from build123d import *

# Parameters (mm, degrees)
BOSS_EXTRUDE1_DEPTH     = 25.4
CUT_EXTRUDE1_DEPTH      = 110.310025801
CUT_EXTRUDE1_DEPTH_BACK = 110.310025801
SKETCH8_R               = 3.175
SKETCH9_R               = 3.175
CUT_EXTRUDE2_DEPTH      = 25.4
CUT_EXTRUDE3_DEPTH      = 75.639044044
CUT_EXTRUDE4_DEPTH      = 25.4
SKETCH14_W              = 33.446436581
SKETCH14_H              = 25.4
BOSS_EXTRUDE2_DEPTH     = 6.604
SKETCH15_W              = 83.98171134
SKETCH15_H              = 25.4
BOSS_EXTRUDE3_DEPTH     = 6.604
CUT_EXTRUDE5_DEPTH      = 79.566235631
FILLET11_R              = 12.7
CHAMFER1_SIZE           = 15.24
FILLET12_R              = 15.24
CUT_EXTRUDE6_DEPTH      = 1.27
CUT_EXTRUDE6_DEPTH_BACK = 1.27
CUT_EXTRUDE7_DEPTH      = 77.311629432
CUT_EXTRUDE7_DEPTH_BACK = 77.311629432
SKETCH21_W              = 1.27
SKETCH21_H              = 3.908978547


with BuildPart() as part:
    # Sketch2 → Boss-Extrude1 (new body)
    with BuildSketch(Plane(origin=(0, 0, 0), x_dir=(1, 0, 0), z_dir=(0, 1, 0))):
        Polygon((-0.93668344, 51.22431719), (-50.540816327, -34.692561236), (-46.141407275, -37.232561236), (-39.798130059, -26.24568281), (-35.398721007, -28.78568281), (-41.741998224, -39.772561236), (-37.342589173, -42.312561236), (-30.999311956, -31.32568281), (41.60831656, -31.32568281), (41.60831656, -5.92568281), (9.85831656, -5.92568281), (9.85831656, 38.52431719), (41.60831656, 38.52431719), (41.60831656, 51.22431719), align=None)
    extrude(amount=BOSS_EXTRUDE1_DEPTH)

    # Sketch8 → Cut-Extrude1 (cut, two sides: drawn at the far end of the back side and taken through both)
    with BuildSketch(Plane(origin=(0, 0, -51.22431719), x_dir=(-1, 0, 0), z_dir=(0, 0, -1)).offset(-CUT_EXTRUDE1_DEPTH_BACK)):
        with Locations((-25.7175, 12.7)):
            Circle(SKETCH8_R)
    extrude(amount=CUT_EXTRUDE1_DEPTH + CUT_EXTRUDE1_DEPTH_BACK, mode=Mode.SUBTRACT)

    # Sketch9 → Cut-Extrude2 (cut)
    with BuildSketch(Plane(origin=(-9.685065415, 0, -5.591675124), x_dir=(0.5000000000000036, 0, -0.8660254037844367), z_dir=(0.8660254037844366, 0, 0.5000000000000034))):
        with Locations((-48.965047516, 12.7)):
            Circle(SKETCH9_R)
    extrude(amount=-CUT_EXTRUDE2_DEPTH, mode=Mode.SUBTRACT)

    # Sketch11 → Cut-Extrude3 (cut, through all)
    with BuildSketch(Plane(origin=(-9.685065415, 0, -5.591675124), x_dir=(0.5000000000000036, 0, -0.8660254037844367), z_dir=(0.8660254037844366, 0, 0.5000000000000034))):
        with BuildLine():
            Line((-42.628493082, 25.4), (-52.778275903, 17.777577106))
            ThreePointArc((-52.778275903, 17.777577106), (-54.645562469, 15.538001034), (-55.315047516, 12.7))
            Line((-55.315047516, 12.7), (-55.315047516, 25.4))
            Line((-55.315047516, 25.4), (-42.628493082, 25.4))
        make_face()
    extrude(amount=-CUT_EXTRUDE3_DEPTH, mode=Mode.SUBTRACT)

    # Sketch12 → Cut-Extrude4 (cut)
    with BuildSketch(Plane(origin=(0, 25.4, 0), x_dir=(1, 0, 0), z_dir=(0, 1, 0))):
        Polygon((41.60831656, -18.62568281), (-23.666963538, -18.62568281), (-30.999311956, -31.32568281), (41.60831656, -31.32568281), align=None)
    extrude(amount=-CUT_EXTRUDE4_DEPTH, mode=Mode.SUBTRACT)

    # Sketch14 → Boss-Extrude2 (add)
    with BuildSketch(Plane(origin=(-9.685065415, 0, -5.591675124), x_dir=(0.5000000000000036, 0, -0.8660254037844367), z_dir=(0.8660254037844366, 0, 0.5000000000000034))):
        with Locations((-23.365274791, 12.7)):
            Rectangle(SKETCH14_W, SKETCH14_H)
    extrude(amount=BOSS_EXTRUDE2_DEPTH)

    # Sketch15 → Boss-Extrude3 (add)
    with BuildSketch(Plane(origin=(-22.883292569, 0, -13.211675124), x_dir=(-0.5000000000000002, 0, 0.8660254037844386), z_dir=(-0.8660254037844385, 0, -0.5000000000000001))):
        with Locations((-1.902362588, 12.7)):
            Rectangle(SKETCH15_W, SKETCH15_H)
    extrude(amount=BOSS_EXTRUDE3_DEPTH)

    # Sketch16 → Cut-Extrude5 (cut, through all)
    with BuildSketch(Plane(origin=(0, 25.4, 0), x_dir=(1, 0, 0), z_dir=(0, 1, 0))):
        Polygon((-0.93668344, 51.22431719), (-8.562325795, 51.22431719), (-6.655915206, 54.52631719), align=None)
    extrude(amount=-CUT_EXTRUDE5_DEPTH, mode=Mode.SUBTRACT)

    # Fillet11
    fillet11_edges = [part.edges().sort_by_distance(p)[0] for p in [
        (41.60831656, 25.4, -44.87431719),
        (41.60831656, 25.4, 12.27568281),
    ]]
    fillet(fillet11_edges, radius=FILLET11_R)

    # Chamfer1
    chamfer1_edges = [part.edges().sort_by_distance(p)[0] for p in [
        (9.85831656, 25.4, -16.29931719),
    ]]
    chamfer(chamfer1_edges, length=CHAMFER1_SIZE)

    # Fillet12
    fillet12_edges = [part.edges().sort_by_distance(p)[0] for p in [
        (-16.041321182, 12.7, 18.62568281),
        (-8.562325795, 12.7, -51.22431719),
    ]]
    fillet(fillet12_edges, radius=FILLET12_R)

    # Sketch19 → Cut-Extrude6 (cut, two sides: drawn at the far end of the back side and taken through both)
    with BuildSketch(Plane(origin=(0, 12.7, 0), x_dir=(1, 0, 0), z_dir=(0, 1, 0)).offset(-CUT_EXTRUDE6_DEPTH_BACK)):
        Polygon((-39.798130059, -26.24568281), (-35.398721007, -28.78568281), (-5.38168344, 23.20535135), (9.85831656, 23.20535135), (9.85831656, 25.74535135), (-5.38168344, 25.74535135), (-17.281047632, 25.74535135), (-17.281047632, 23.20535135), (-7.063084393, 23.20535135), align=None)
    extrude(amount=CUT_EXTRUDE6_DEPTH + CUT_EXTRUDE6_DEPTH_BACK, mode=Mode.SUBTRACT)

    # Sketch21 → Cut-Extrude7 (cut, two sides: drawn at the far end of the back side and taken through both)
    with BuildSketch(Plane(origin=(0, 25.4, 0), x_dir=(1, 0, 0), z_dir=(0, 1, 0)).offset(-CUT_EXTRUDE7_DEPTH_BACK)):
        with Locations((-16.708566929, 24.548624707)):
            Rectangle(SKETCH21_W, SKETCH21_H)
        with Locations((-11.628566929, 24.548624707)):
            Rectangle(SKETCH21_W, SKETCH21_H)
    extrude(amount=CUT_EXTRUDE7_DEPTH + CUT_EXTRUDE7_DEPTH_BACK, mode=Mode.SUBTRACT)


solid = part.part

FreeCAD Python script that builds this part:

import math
import FreeCAD as App
import Part
import Sketcher

V = App.Vector
Q = App.Units.Quantity


def edges_at(feature, points):
    """Names of the edges that pass closest to the given points."""
    edges = feature.Shape.Edges
    near = lambda p: min(range(len(edges)), key=lambda i: edges[i].distToShape(Part.Vertex(*p))[0])
    return sorted({f"Edge{near(p) + 1}" for p in points})


def add_polygon(sketch, points):
    """Adds a closed chain of lines whose ends are joined by coincident constraints."""
    first, n = sketch.GeometryCount, len(points)
    for a, b in zip(points, points[1:] + points[:1]):
        sketch.addGeometry(Part.LineSegment(App.Vector(*a, 0), App.Vector(*b, 0)), False)
    for i in range(n):
        sketch.addConstraint(Sketcher.Constraint("Coincident", first + i, 2, first + (i + 1) % n, 1))

doc = App.newDocument("Part")
body = doc.addObject("PartDesign::Body", "Body")

sketch1 = body.newObject("Sketcher::SketchObject", "Sketch")
sketch1.AttachmentSupport = (doc.getObject("XZ_Plane"), [""])
sketch1.MapMode = "FlatFace"
add_polygon(sketch1, [(-0.936683, -51.224317), (-50.540816, 34.692561), (-46.141407, 37.232561), (-39.79813, 26.245683), (-35.398721, 28.785683), (-41.741998, 39.772561), (-37.342589, 42.312561), (-30.999312, 31.325683), (41.608317, 31.325683), (41.608317, 5.925683), (9.858317, 5.925683), (9.858317, -38.524317), (41.608317, -38.524317), (41.608317, -51.224317)])
sketch1.addConstraint(Sketcher.Constraint("Horizontal", 7))
sketch1.addConstraint(Sketcher.Constraint("Vertical", 8))
sketch1.addConstraint(Sketcher.Constraint("Horizontal", 9))
sketch1.addConstraint(Sketcher.Constraint("Vertical", 10))
sketch1.addConstraint(Sketcher.Constraint("Horizontal", 11))
sketch1.addConstraint(Sketcher.Constraint("Vertical", 12))
sketch1.addConstraint(Sketcher.Constraint("Horizontal", 13))
sketch1.addConstraint(Sketcher.Constraint("Perpendicular", 0, 1))
sketch1.addConstraint(Sketcher.Constraint("Perpendicular", 1, 2))
sketch1.addConstraint(Sketcher.Constraint("Perpendicular", 2, 3))
sketch1.addConstraint(Sketcher.Constraint("Perpendicular", 3, 4))
sketch1.addConstraint(Sketcher.Constraint("Perpendicular", 4, 5))
sketch1.addConstraint(Sketcher.Constraint("Perpendicular", 5, 6))
sketch1.addConstraint(Sketcher.Constraint("Vertical", 8, 2, 11, 2))
sketch1.addConstraint(Sketcher.Constraint("Equal", 1, 3))
sketch1.addConstraint(Sketcher.Constraint("Equal", 2, 4))
sketch1.addConstraint(Sketcher.Constraint("Equal", 3, 5))
sketch1.addConstraint(Sketcher.Constraint("Equal", 4, 6))
sketch1.addConstraint(Sketcher.Constraint("DistanceY", 8, 2, 8, 1, Q("1 in")))
sketch1.addConstraint(Sketcher.Constraint("DistanceY", 12, 2, 12, 1, Q("0.5 in")))
sketch1.addConstraint(Sketcher.Constraint("Angle", 0, Q("120 deg")))
sketch1.addConstraint(Sketcher.Constraint("Distance", 1, Q("0.2 in")))
sketch1.addConstraint(Sketcher.Constraint("DistanceX", 9, 2, 9, 1, Q("1.25 in")))
sketch1.addConstraint(Sketcher.Constraint("DistanceY", 10, 2, 10, 1, Q("1.75 in")))
sketch1.addConstraint(Sketcher.Constraint("DistanceX", 13, 2, 13, 1, Q("1.675 in")))
sketch1.addConstraint(Sketcher.Constraint("DistanceX", 4, 2, -1, 1, 41.741998))
sketch1.addConstraint(Sketcher.Constraint("DistanceY", -1, 1, 0, 2, 34.692561))
sketch1.addConstraint(Sketcher.Constraint("DistanceX", 2, 2, -1, 1, 39.79813))
pad1 = body.newObject("PartDesign::Pad", "Pad")
pad1.Profile = sketch1
pad1.Length = Q("1 in")
pad1.Reversed = True

sketch2 = body.newObject("Sketcher::SketchObject", "Sketch001")
sketch2.AttachmentSupport = (doc.getObject("XY_Plane"), [""])
sketch2.MapMode = "FlatFace"
sketch2.AttachmentOffset = App.Placement(V(0, 0, -51.224317), App.Rotation())
sketch2.addGeometry(Part.Circle(V(25.7175, 12.7, 0), V(0, 0, 1), 3.175), False)
sketch2.addConstraint(Sketcher.Constraint("Diameter", 0, Q("0.25 in")))
sketch2.addConstraint(Sketcher.Constraint("DistanceY", -1, 1, 0, 3, Q("0.5 in")))
sketch2.addConstraint(Sketcher.Constraint("DistanceX", -1, 1, 0, 3, Q("1.0125 in")))
pocket1 = body.newObject("PartDesign::Pocket", "Pocket")
pocket1.Profile = sketch2
pocket1.Type = "ThroughAll"
pocket1.Midplane = True

sketch3 = body.newObject("Sketcher::SketchObject", "Sketch002")
sketch3.Placement = App.Placement(V(-9.685065, 0, -5.591675), App.Rotation(V(0.5, 0, -0.866025404), V(0, 1, 0), V(0.866025404, 0, 0.5), "ZXY"))
sketch3.addGeometry(Part.Circle(V(-48.965048, 12.7, 0), V(0, 0, 1), 3.175), False)
sketch3.addConstraint(Sketcher.Constraint("Diameter", 0, Q("0.25 in")))
sketch3.addConstraint(Sketcher.Constraint("DistanceY", -1, 1, 0, 3, Q("0.5 in")))
sketch3.addConstraint(Sketcher.Constraint("DistanceX", 0, 3, -1, 1, 48.965048))
pocket2 = body.newObject("PartDesign::Pocket", "Pocket001")
pocket2.Profile = sketch3
pocket2.Length = Q("1 in")

sketch4 = body.newObject("Sketcher::SketchObject", "Sketch003")
sketch4.Placement = App.Placement(V(-9.685065, 0, -5.591675), App.Rotation(V(0.5, 0, -0.866025404), V(0, 1, 0), V(0.866025404, 0, 0.5), "ZXY"))
sketch4.addGeometry(Part.LineSegment(V(-52.778276, 17.777577, 0), V(-42.628493, 25.4, 0)), False)
sketch4.addGeometry(Part.LineSegment(V(-42.628493, 25.4, 0), V(-55.315048, 25.4, 0)), False)
sketch4.addGeometry(Part.LineSegment(V(-55.315048, 25.4, 0), V(-55.315048, 12.7, 0)), False)
sketch4.addGeometry(Part.ArcOfCircle(Part.Circle(V(-48.965048, 12.7, 0), V(0, 0, 1), 6.35), math.radians(126.906318), math.radians(180)), False)
sketch4.addConstraint(Sketcher.Constraint("Coincident", 0, 2, 1, 1))
sketch4.addConstraint(Sketcher.Constraint("Coincident", 1, 2, 2, 1))
sketch4.addConstraint(Sketcher.Constraint("Tangent", 2, 2, 3, 2))
sketch4.addConstraint(Sketcher.Constraint("Tangent", 3, 1, 0, 1))
sketch4.addConstraint(Sketcher.Constraint("Horizontal", 1))
sketch4.addConstraint(Sketcher.Constraint("Vertical", 2))
sketch4.addConstraint(Sketcher.Constraint("Radius", 3, Q("0.25 in")))
sketch4.addConstraint(Sketcher.Constraint("DistanceY", 2, 2, 2, 1, Q("0.5 in")))
sketch4.addConstraint(Sketcher.Constraint("DistanceY", -1, 1, 0, 2, Q("1 in")))
sketch4.addConstraint(Sketcher.Constraint("DistanceX", 1, 2, 1, 1, 12.686554))
sketch4.addConstraint(Sketcher.Constraint("DistanceX", 3, 3, -1, 1, 48.965048))
pocket3 = body.newObject("PartDesign::Pocket", "Pocket002")
pocket3.Profile = sketch4
pocket3.Type = "ThroughAll"

sketch5 = body.newObject("Sketcher::SketchObject", "Sketch004")
sketch5.AttachmentSupport = (doc.getObject("XZ_Plane"), [""])
sketch5.MapMode = "FlatFace"
sketch5.AttachmentOffset = App.Placement(V(0, 0, -1 * 25.4), App.Rotation())
add_polygon(sketch5, [(41.608317, 18.625683), (-23.666964, 18.625683), (-30.999312, 31.325683), (41.608317, 31.325683)])
sketch5.addConstraint(Sketcher.Constraint("Horizontal", 0))
sketch5.addConstraint(Sketcher.Constraint("Horizontal", 2))
sketch5.addConstraint(Sketcher.Constraint("Vertical", 3))
sketch5.addConstraint(Sketcher.Constraint("DistanceY", 3, 2, 3, 1, Q("0.5 in")))
sketch5.addConstraint(Sketcher.Constraint("Angle", 1, Q("120 deg")))
sketch5.addConstraint(Sketcher.Constraint("DistanceX", 0, 2, 0, 1, 65.27528))
sketch5.addConstraint(Sketcher.Constraint("DistanceX", 1, 2, -1, 1, 30.999312))
sketch5.addConstraint(Sketcher.Constraint("DistanceY", -1, 1, 0, 2, 18.625683))
pocket4 = body.newObject("PartDesign::Pocket", "Pocket003")
pocket4.Profile = sketch5
pocket4.Length = Q("1 in")
pocket4.Reversed = True

sketch6 = body.newObject("Sketcher::SketchObject", "Sketch005")
sketch6.Placement = App.Placement(V(-9.685065, 0, -5.591675), App.Rotation(V(0.5, 0, -0.866025404), V(0, 1, 0), V(0.866025404, 0, 0.5), "ZXY"))
add_polygon(sketch6, [(-40.088493, 25.4), (-40.088493, 0), (-6.642057, 0), (-6.642057, 25.4)])
sketch6.addConstraint(Sketcher.Constraint("Vertical", 0))
sketch6.addConstraint(Sketcher.Constraint("Horizontal", 1))
sketch6.addConstraint(Sketcher.Constraint("Vertical", 2))
sketch6.addConstraint(Sketcher.Constraint("Horizontal", 3))
sketch6.addConstraint(Sketcher.Constraint("PointOnObject", 0, 2, -1))
sketch6.addConstraint(Sketcher.Constraint("DistanceY", 0, 2, 0, 1, Q("1 in")))
sketch6.addConstraint(Sketcher.Constraint("DistanceX", 1, 1, 1, 2, 33.446437))
sketch6.addConstraint(Sketcher.Constraint("DistanceX", 0, 2, -1, 1, 40.088493))
pad2 = body.newObject("PartDesign::Pad", "Pad001")
pad2.Profile = sketch6
pad2.Length = Q("0.26 in")

sketch7 = body.newObject("Sketcher::SketchObject", "Sketch006")
sketch7.Placement = App.Placement(V(-22.883293, 0, -13.211675), App.Rotation(V(-0.5, 0, 0.866025404), V(0, 1, 0), V(-0.866025404, 0, -0.5), "ZXY"))
add_polygon(sketch7, [(-43.893218, 25.4), (-43.893218, 0), (40.088493, 0), (40.088493, 25.4)])
sketch7.addConstraint(Sketcher.Constraint("Vertical", 0))
sketch7.addConstraint(Sketcher.Constraint("Horizontal", 1))
sketch7.addConstraint(Sketcher.Constraint("Vertical", 2))
sketch7.addConstraint(Sketcher.Constraint("Horizontal", 3))
sketch7.addConstraint(Sketcher.Constraint("PointOnObject", 0, 2, -1))
sketch7.addConstraint(Sketcher.Constraint("DistanceY", 0, 2, 0, 1, Q("1 in")))
sketch7.addConstraint(Sketcher.Constraint("DistanceX", 1, 1, 1, 2, 83.981711))
sketch7.addConstraint(Sketcher.Constraint("DistanceX", 0, 2, -1, 1, 43.893218))
pad3 = body.newObject("PartDesign::Pad", "Pad002")
pad3.Profile = sketch7
pad3.Length = Q("0.26 in")

sketch8 = body.newObject("Sketcher::SketchObject", "Sketch007")
sketch8.AttachmentSupport = (doc.getObject("XZ_Plane"), [""])
sketch8.MapMode = "FlatFace"
sketch8.AttachmentOffset = App.Placement(V(0, 0, -1 * 25.4), App.Rotation())
add_polygon(sketch8, [(-8.562326, -51.224317), (-0.936683, -51.224317), (-6.655915, -54.526317)])
sketch8.addConstraint(Sketcher.Constraint("Horizontal", 0))
sketch8.addConstraint(Sketcher.Constraint("Perpendicular", 1, 2))
sketch8.addConstraint(Sketcher.Constraint("Angle", 1, Q("-150 deg")))
sketch8.addConstraint(Sketcher.Constraint("Distance", 1, Q("0.26 in")))
sketch8.addConstraint(Sketcher.Constraint("DistanceX", 0, 2, -1, 1, 0.936683))
sketch8.addConstraint(Sketcher.Constraint("DistanceY", 0, 2, -1, 1, 51.224317))
pocket5 = body.newObject("PartDesign::Pocket", "Pocket004")
pocket5.Profile = sketch8
pocket5.Type = "ThroughAll"
pocket5.Reversed = True
doc.recompute()

fillet = body.newObject("PartDesign::Fillet", "Fillet")
fillet.Base = (pocket5, edges_at(pocket5, [(41.608, 25.4, -44.874), (41.608, 25.4, 12.276)]))
fillet.Radius = Q("0.5 in")
doc.recompute()

chamfer = body.newObject("PartDesign::Chamfer", "Chamfer")
chamfer.Base = (fillet, edges_at(fillet, [(9.858, 25.4, -16.299)]))
chamfer.Size = Q("0.6 in")
doc.recompute()

fillet2 = body.newObject("PartDesign::Fillet", "Fillet001")
fillet2.Base = (chamfer, edges_at(chamfer, [(-16.041, 12.7, 18.626), (-8.562, 12.7, -51.224)]))
fillet2.Radius = Q("0.6 in")

sketch9 = body.newObject("Sketcher::SketchObject", "Sketch008")
sketch9.AttachmentSupport = (doc.getObject("XZ_Plane"), [""])
sketch9.MapMode = "FlatFace"
sketch9.AttachmentOffset = App.Placement(V(0, 0, -0.5 * 25.4), App.Rotation())
add_polygon(sketch9, [(-39.79813, 26.245683), (-35.398721, 28.785683), (-5.381683, -23.205351), (9.858317, -23.205351), (9.858317, -25.745351), (-17.281048, -25.745351), (-17.281048, -23.205351), (-7.063084, -23.205351)])
sketch9.addConstraint(Sketcher.Constraint("Horizontal", 2))
sketch9.addConstraint(Sketcher.Constraint("Vertical", 3))
sketch9.addConstraint(Sketcher.Constraint("Horizontal", 4))
sketch9.addConstraint(Sketcher.Constraint("Vertical", 5))
sketch9.addConstraint(Sketcher.Constraint("Horizontal", 6))
sketch9.addConstraint(Sketcher.Constraint("Perpendicular", 0, 1))
sketch9.addConstraint(Sketcher.Constraint("Horizontal", 2, 2, 5, 2))
sketch9.addConstraint(Sketcher.Constraint("DistanceX", 2, 1, 2, 2, Q("0.6 in")))
sketch9.addConstraint(Sketcher.Constraint("DistanceY", 3, 2, 3, 1, Q("0.1 in")))
sketch9.addConstraint(Sketcher.Constraint("Angle", 0, Q("30 deg")))
sketch9.addConstraint(Sketcher.Constraint("Distance", 0, Q("0.2 in")))
sketch9.addConstraint(Sketcher.Constraint("Distance", 7, 59.304199))
sketch9.addConstraint(Sketcher.Constraint("DistanceX", 6, 2, 1, 2, 1.681401))
sketch9.addConstraint(Sketcher.Constraint("DistanceX", 4, 2, 4, 1, 27.139364))
sketch9.addConstraint(Sketcher.Constraint("DistanceX", 0, 2, -1, 1, 35.398721))
sketch9.addConstraint(Sketcher.Constraint("DistanceY", 1, 2, -1, 1, 23.205351))
pocket6 = body.newObject("PartDesign::Pocket", "Pocket005")
pocket6.Profile = sketch9
pocket6.Type = "TwoLengths"
pocket6.Length = Q("0.05 in")
pocket6.Length2 = Q("0.05 in")

sketch10 = body.newObject("Sketcher::SketchObject", "Sketch009")
sketch10.AttachmentSupport = (doc.getObject("XZ_Plane"), [""])
sketch10.MapMode = "FlatFace"
sketch10.AttachmentOffset = App.Placement(V(0, 0, -1 * 25.4), App.Rotation())
add_polygon(sketch10, [(-17.343567, -26.503114), (-17.343567, -22.594135), (-16.073567, -22.594135), (-16.073567, -26.503114)])
add_polygon(sketch10, [(-12.263567, -26.503114), (-12.263567, -22.594135), (-10.993567, -22.594135), (-10.993567, -26.503114)])
sketch10.addConstraint(Sketcher.Constraint("Vertical", 0))
sketch10.addConstraint(Sketcher.Constraint("Horizontal", 1))
sketch10.addConstraint(Sketcher.Constraint("Vertical", 2))
sketch10.addConstraint(Sketcher.Constraint("Horizontal", 3))
sketch10.addConstraint(Sketcher.Constraint("Vertical", 4))
sketch10.addConstraint(Sketcher.Constraint("Horizontal", 5))
sketch10.addConstraint(Sketcher.Constraint("Vertical", 6))
sketch10.addConstraint(Sketcher.Constraint("Horizontal", 7))
sketch10.addConstraint(Sketcher.Constraint("Horizontal", 1, 2, 4, 2))
sketch10.addConstraint(Sketcher.Constraint("Horizontal", 3, 2, 6, 2))
sketch10.addConstraint(Sketcher.Constraint("Equal", 3, 5))
sketch10.addConstraint(Sketcher.Constraint("DistanceX", 1, 1, 1, 2, Q("0.05 in")))
sketch10.addConstraint(Sketcher.Constraint("DistanceX", 0, 2, 4, 2, Q("0.2 in")))
sketch10.addConstraint(Sketcher.Constraint("DistanceY", 0, 1, 0, 2, 3.908979))
sketch10.addConstraint(Sketcher.Constraint("DistanceX", 0, 2, -1, 1, 17.343567))
sketch10.addConstraint(Sketcher.Constraint("DistanceY", 0, 2, -1, 1, 22.594135))
pocket7 = body.newObject("PartDesign::Pocket", "Pocket006")
pocket7.Profile = sketch10
pocket7.Type = "ThroughAll"
pocket7.Midplane = True

doc.recompute()
